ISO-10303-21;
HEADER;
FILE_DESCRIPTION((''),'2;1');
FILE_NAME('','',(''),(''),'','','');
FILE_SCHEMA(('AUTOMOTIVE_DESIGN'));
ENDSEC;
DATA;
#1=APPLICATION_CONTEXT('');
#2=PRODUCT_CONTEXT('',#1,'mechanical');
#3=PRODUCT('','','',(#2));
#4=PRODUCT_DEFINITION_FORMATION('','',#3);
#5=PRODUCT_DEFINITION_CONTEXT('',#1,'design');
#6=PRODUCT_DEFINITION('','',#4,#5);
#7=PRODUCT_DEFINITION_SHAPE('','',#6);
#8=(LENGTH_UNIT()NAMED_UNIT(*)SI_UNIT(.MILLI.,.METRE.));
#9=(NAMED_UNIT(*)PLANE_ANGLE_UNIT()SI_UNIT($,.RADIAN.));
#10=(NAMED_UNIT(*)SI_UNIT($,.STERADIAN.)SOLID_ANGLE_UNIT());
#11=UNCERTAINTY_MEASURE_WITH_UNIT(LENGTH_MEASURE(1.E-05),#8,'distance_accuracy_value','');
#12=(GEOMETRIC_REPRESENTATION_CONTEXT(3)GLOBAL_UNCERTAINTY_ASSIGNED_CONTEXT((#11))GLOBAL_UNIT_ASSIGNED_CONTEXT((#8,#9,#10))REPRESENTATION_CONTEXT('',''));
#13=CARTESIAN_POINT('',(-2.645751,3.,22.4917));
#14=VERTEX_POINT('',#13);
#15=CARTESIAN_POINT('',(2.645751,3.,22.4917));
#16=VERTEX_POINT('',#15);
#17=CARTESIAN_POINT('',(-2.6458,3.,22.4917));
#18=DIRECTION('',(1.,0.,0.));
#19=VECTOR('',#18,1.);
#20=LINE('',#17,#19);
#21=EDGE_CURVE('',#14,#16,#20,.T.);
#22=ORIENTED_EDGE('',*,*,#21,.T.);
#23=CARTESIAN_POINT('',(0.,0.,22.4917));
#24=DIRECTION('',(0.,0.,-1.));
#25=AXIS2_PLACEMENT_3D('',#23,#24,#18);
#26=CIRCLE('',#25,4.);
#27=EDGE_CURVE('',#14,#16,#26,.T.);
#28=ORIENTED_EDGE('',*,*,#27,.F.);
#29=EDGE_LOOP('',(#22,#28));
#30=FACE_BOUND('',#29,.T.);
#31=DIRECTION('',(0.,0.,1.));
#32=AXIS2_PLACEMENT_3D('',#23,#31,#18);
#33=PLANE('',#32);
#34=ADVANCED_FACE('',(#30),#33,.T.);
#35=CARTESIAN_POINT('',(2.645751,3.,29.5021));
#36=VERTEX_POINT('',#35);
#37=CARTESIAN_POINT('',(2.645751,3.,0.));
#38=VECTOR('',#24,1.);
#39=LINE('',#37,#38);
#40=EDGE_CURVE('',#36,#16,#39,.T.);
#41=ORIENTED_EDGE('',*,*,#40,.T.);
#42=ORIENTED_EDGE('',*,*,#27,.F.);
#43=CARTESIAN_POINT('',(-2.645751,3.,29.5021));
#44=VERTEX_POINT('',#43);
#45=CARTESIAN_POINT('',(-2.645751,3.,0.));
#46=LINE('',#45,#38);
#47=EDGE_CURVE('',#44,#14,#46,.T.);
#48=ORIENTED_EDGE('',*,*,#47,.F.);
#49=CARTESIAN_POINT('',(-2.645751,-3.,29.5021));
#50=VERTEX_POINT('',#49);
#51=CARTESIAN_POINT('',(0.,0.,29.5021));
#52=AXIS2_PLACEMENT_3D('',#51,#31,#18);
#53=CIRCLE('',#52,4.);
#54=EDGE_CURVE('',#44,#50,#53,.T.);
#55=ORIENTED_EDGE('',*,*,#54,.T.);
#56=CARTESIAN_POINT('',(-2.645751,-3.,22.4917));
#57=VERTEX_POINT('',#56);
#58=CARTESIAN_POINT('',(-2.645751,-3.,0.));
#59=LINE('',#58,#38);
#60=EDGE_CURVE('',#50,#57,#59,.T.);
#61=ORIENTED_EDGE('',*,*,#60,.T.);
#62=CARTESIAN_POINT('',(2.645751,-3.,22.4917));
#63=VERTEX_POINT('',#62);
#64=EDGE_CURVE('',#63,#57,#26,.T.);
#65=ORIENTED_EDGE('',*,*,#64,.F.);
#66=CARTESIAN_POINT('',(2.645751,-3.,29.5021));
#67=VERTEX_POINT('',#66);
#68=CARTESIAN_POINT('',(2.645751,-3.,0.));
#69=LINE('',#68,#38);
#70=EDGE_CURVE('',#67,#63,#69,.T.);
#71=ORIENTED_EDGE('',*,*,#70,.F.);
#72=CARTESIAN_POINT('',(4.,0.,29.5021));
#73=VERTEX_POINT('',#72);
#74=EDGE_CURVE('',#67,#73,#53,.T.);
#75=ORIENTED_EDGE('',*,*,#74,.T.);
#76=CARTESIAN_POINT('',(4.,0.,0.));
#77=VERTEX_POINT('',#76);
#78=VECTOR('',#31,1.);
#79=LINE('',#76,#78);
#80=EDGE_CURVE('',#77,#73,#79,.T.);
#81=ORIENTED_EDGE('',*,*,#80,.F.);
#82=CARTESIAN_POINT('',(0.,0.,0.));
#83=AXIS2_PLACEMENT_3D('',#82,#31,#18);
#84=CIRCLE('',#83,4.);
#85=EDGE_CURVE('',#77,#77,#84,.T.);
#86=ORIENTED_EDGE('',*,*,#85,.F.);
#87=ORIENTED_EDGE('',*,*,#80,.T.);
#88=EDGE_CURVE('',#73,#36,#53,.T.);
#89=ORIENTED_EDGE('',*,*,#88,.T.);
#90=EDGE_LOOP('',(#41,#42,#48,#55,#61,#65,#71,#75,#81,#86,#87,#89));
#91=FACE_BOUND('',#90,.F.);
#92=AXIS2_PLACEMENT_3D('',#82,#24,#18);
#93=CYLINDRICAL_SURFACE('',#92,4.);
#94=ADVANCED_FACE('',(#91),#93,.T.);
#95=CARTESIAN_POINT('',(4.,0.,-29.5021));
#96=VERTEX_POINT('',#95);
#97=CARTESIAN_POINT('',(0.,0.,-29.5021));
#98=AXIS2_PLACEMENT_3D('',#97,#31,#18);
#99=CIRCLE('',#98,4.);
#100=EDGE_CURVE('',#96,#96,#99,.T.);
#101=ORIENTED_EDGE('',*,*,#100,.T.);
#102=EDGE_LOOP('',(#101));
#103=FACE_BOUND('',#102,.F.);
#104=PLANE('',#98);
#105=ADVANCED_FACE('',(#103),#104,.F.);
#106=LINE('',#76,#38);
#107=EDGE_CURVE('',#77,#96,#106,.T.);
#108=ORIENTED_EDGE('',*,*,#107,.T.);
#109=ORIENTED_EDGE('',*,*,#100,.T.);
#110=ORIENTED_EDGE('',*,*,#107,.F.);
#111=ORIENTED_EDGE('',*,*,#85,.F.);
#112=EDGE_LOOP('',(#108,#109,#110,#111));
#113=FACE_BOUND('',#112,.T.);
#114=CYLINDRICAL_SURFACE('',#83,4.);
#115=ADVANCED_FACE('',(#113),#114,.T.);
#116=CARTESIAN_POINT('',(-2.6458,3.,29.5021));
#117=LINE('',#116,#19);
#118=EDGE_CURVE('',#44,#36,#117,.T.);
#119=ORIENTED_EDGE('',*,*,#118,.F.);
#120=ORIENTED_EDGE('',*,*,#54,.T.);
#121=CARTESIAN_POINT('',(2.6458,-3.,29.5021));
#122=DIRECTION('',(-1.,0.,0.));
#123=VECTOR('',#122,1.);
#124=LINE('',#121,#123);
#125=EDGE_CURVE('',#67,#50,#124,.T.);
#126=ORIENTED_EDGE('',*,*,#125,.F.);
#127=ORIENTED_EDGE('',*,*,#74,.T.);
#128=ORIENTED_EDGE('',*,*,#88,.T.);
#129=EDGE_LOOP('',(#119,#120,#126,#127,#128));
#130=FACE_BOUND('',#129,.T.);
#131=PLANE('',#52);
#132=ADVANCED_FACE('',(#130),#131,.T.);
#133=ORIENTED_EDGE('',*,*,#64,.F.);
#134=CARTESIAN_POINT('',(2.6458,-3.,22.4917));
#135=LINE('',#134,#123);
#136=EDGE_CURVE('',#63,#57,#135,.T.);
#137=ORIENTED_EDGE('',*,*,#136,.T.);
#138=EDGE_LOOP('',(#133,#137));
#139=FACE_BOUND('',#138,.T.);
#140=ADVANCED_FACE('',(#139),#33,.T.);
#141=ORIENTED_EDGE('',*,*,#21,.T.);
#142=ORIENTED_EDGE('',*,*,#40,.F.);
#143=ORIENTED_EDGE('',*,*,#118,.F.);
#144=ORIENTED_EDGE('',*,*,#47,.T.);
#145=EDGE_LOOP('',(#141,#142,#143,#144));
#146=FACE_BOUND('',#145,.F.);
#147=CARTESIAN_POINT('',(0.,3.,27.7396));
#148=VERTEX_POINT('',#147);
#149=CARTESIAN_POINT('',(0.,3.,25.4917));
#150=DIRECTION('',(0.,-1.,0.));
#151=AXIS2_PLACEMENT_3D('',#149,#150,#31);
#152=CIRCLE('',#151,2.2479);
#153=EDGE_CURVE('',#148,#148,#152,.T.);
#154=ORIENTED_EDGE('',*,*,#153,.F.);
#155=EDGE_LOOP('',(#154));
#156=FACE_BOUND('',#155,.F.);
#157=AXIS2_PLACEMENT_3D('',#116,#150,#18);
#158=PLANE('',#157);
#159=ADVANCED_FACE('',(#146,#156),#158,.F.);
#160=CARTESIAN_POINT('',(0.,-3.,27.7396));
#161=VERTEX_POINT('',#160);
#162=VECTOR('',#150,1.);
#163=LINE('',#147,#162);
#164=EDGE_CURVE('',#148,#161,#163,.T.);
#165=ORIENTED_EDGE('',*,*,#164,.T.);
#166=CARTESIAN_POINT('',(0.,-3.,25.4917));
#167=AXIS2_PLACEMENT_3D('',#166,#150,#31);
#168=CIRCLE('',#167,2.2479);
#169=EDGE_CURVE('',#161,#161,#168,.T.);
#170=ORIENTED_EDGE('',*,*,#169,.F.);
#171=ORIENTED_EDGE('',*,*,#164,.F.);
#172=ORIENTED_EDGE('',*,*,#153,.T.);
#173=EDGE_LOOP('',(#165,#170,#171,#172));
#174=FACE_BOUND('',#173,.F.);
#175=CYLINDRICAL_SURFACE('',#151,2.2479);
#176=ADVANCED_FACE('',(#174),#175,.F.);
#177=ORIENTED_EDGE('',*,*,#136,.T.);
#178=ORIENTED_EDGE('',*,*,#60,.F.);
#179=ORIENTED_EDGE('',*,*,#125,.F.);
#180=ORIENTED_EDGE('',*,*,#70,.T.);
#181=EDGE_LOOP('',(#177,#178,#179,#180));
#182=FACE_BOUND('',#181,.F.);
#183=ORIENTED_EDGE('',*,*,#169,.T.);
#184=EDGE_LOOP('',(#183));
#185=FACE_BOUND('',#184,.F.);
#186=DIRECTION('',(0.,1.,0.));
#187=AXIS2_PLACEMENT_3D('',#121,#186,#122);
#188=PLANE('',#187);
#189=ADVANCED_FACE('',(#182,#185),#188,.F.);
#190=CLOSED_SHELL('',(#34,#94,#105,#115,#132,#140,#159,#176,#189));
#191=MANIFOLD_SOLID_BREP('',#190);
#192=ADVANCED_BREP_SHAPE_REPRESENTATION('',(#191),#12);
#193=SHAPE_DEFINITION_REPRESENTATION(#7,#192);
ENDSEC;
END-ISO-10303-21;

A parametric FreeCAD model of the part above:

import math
import FreeCAD as App
import Part
import Sketcher
from FreeCAD import Vector
Q = App.Units.Quantity

doc = App.newDocument("Part")
body = doc.addObject("PartDesign::Body", "Body")

# Sketch on XY plane
sketch1 = body.newObject("Sketcher::SketchObject", "Sketch")
sketch1.AttachmentSupport = (doc.getObject("XY_Plane"), [""])
sketch1.MapMode = "FlatFace"
sketch1.addGeometry(Part.Circle(Vector(0, 0, 0), Vector(0, 0, 1), 4), False)
sketch1.addConstraint([
    Sketcher.Constraint("Coincident", 0, 3, -1, 1),
    Sketcher.Constraint("Diameter", 0, Q("8 mm")),
])
pad1 = body.newObject("PartDesign::Pad", "Pad")
pad1.Profile = sketch1
pad1.Length = 59.0042
pad1.Midplane = True

# Sketch on XY plane
sketch2 = body.newObject("Sketcher::SketchObject", "Sketch001")
sketch2.AttachmentSupport = (doc.getObject("XY_Plane"), [""])
sketch2.MapMode = "FlatFace"
sketch2.AttachmentOffset = App.Placement(Vector(0, 0, 29.5021), App.Rotation())
sketch2.addGeometry([
    Part.ArcOfCircle(Part.Circle(Vector(0, 0, 0), Vector(0, 0, 1), 4), math.radians(49), math.radians(131)),
    Part.LineSegment(Vector(-2.6, 3, 0), Vector(2.6, 3, 0)),
    Part.ArcOfCircle(Part.Circle(Vector(0, 0, 0), Vector(0, 0, 1), 4), math.radians(-131), math.radians(-49)),
    Part.LineSegment(Vector(2.6, -3, 0), Vector(-2.6, -3, 0)),
], False)
sketch2.addConstraint([
    Sketcher.Constraint("Coincident", 0, 1, 1, 2),
    Sketcher.Constraint("Coincident", 1, 1, 0, 2),
    Sketcher.Constraint("Coincident", 2, 1, 3, 2),
    Sketcher.Constraint("Coincident", 3, 1, 2, 2),
    Sketcher.Constraint("Horizontal", 1),
    Sketcher.Constraint("Horizontal", 3),
    Sketcher.Constraint("Coincident", 0, 3, -1, 1),
    Sketcher.Constraint("Coincident", 2, 3, -1, 1),
    Sketcher.Constraint("Equal", 0, 2),
    Sketcher.Constraint("Vertical", 1, 1, 2, 1),
    Sketcher.Constraint("Radius", 0, Q("4 mm")),
    Sketcher.Constraint("DistanceY", 2, 1, 1, 1, Q("6 mm")),
])
pocket1 = body.newObject("PartDesign::Pocket", "Pocket")
pocket1.Profile = sketch2
pocket1.Length = 7.0104

# Sketch on XZ plane
sketch3 = body.newObject("Sketcher::SketchObject", "Sketch002")
sketch3.AttachmentSupport = (doc.getObject("XZ_Plane"), [""])
sketch3.MapMode = "FlatFace"
sketch3.AttachmentOffset = App.Placement(Vector(0, 0, -3), App.Rotation())
sketch3.addGeometry(Part.Circle(Vector(0, 25.5, 0), Vector(0, 0, 1), 2.2), False)
sketch3.addConstraint([
    Sketcher.Constraint("PointOnObject", 0, 3, -2),
    Sketcher.Constraint("Diameter", 0, Q("4.4958 mm")),
    Sketcher.Constraint("DistanceY", -1, 1, 0, 3, Q("25.4917 mm")),
])
doc.recompute()
hole = body.newObject("PartDesign::Hole", "Hole")
hole.Profile = sketch3
hole.ThreadType = "None"
hole.Diameter = 4.4958
hole.DepthType = "ThroughAll"
hole.Reversed = True

doc.recompute()
